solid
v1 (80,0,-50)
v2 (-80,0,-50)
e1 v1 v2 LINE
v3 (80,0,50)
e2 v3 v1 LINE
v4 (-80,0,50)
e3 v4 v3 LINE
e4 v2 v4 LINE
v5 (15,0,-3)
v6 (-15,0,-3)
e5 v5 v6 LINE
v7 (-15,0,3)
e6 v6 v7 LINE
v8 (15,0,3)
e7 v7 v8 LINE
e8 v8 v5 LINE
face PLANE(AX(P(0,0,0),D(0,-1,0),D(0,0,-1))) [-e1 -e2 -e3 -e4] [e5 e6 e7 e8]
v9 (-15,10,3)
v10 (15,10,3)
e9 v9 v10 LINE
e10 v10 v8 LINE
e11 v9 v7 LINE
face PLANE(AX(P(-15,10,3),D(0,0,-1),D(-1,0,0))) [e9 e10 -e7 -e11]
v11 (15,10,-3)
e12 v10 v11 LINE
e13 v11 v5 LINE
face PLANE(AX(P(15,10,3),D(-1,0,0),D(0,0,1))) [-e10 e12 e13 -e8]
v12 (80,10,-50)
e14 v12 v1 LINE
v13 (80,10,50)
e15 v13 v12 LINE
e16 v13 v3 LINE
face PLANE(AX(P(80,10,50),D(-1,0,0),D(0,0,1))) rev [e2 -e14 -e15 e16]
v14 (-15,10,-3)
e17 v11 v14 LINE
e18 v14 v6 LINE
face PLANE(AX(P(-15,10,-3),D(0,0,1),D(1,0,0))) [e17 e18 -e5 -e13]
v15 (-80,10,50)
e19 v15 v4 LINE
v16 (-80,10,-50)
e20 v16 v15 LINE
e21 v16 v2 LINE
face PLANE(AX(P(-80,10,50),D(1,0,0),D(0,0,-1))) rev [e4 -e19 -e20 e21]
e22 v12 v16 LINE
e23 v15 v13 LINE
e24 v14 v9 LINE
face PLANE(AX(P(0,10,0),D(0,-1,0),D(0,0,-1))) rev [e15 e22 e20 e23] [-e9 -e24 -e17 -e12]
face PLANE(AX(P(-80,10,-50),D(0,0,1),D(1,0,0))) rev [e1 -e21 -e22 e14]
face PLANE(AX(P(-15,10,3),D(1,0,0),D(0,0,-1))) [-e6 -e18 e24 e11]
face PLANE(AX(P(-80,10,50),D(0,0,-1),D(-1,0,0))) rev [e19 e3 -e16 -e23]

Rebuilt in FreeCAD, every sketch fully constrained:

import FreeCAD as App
import Part
import Sketcher

V = App.Vector
Q = App.Units.Quantity

doc = App.newDocument("Part")
body = doc.addObject("PartDesign::Body", "Body")

# Sketch on XZ plane
sketch1 = body.newObject("Sketcher::SketchObject", "Sketch")
sketch1.AttachmentSupport = (doc.getObject("XZ_Plane"), [""])
sketch1.MapMode = "FlatFace"
sketch1.addGeometry([
    Part.LineSegment(V(-80, -50, 0), V(-80, 50, 0)),  # 0
    Part.LineSegment(V(-80, 50, 0), V(80, 50, 0)),  # 1
    Part.LineSegment(V(80, 50, 0), V(80, -50, 0)),  # 2
    Part.LineSegment(V(80, -50, 0), V(-80, -50, 0)),  # 3
    Part.LineSegment(V(15, 3, 0), V(-15, 3, 0)),  # 4
    Part.LineSegment(V(-15, 3, 0), V(-15, -3, 0)),  # 5
    Part.LineSegment(V(-15, -3, 0), V(15, -3, 0)),  # 6
    Part.LineSegment(V(15, -3, 0), V(15, 3, 0)),  # 7
], False)
sketch1.addConstraint([
    Sketcher.Constraint("Coincident", 0, 2, 1, 1),
    Sketcher.Constraint("Coincident", 1, 2, 2, 1),
    Sketcher.Constraint("Coincident", 2, 2, 3, 1),
    Sketcher.Constraint("Coincident", 3, 2, 0, 1),
    Sketcher.Constraint("Coincident", 4, 2, 5, 1),
    Sketcher.Constraint("Coincident", 5, 2, 6, 1),
    Sketcher.Constraint("Coincident", 6, 2, 7, 1),
    Sketcher.Constraint("Coincident", 7, 2, 4, 1),
    Sketcher.Constraint("Vertical", 0),
    Sketcher.Constraint("Horizontal", 1),
    Sketcher.Constraint("Vertical", 2),
    Sketcher.Constraint("Horizontal", 3),
    Sketcher.Constraint("Horizontal", 4),
    Sketcher.Constraint("Vertical", 5),
    Sketcher.Constraint("Horizontal", 6),
    Sketcher.Constraint("Vertical", 7),
    Sketcher.Constraint("Symmetric", 0, 2, 2, 2, -1, 1),
    Sketcher.Constraint("Symmetric", 4, 2, 6, 2, -1, 1),
    Sketcher.Constraint("DistanceX", 1, 1, 1, 2, Q("160 mm")),
    Sketcher.Constraint("DistanceX", 4, 2, 4, 1, Q("30 mm")),
    Sketcher.Constraint("DistanceY", 0, 1, 0, 2, Q("100 mm")),
    Sketcher.Constraint("DistanceY", 5, 2, 5, 1, Q("6 mm")),
])
pad1 = body.newObject("PartDesign::Pad", "Pad")
pad1.Profile = sketch1
pad1.Length = 10
pad1.Reversed = True

doc.recompute()
